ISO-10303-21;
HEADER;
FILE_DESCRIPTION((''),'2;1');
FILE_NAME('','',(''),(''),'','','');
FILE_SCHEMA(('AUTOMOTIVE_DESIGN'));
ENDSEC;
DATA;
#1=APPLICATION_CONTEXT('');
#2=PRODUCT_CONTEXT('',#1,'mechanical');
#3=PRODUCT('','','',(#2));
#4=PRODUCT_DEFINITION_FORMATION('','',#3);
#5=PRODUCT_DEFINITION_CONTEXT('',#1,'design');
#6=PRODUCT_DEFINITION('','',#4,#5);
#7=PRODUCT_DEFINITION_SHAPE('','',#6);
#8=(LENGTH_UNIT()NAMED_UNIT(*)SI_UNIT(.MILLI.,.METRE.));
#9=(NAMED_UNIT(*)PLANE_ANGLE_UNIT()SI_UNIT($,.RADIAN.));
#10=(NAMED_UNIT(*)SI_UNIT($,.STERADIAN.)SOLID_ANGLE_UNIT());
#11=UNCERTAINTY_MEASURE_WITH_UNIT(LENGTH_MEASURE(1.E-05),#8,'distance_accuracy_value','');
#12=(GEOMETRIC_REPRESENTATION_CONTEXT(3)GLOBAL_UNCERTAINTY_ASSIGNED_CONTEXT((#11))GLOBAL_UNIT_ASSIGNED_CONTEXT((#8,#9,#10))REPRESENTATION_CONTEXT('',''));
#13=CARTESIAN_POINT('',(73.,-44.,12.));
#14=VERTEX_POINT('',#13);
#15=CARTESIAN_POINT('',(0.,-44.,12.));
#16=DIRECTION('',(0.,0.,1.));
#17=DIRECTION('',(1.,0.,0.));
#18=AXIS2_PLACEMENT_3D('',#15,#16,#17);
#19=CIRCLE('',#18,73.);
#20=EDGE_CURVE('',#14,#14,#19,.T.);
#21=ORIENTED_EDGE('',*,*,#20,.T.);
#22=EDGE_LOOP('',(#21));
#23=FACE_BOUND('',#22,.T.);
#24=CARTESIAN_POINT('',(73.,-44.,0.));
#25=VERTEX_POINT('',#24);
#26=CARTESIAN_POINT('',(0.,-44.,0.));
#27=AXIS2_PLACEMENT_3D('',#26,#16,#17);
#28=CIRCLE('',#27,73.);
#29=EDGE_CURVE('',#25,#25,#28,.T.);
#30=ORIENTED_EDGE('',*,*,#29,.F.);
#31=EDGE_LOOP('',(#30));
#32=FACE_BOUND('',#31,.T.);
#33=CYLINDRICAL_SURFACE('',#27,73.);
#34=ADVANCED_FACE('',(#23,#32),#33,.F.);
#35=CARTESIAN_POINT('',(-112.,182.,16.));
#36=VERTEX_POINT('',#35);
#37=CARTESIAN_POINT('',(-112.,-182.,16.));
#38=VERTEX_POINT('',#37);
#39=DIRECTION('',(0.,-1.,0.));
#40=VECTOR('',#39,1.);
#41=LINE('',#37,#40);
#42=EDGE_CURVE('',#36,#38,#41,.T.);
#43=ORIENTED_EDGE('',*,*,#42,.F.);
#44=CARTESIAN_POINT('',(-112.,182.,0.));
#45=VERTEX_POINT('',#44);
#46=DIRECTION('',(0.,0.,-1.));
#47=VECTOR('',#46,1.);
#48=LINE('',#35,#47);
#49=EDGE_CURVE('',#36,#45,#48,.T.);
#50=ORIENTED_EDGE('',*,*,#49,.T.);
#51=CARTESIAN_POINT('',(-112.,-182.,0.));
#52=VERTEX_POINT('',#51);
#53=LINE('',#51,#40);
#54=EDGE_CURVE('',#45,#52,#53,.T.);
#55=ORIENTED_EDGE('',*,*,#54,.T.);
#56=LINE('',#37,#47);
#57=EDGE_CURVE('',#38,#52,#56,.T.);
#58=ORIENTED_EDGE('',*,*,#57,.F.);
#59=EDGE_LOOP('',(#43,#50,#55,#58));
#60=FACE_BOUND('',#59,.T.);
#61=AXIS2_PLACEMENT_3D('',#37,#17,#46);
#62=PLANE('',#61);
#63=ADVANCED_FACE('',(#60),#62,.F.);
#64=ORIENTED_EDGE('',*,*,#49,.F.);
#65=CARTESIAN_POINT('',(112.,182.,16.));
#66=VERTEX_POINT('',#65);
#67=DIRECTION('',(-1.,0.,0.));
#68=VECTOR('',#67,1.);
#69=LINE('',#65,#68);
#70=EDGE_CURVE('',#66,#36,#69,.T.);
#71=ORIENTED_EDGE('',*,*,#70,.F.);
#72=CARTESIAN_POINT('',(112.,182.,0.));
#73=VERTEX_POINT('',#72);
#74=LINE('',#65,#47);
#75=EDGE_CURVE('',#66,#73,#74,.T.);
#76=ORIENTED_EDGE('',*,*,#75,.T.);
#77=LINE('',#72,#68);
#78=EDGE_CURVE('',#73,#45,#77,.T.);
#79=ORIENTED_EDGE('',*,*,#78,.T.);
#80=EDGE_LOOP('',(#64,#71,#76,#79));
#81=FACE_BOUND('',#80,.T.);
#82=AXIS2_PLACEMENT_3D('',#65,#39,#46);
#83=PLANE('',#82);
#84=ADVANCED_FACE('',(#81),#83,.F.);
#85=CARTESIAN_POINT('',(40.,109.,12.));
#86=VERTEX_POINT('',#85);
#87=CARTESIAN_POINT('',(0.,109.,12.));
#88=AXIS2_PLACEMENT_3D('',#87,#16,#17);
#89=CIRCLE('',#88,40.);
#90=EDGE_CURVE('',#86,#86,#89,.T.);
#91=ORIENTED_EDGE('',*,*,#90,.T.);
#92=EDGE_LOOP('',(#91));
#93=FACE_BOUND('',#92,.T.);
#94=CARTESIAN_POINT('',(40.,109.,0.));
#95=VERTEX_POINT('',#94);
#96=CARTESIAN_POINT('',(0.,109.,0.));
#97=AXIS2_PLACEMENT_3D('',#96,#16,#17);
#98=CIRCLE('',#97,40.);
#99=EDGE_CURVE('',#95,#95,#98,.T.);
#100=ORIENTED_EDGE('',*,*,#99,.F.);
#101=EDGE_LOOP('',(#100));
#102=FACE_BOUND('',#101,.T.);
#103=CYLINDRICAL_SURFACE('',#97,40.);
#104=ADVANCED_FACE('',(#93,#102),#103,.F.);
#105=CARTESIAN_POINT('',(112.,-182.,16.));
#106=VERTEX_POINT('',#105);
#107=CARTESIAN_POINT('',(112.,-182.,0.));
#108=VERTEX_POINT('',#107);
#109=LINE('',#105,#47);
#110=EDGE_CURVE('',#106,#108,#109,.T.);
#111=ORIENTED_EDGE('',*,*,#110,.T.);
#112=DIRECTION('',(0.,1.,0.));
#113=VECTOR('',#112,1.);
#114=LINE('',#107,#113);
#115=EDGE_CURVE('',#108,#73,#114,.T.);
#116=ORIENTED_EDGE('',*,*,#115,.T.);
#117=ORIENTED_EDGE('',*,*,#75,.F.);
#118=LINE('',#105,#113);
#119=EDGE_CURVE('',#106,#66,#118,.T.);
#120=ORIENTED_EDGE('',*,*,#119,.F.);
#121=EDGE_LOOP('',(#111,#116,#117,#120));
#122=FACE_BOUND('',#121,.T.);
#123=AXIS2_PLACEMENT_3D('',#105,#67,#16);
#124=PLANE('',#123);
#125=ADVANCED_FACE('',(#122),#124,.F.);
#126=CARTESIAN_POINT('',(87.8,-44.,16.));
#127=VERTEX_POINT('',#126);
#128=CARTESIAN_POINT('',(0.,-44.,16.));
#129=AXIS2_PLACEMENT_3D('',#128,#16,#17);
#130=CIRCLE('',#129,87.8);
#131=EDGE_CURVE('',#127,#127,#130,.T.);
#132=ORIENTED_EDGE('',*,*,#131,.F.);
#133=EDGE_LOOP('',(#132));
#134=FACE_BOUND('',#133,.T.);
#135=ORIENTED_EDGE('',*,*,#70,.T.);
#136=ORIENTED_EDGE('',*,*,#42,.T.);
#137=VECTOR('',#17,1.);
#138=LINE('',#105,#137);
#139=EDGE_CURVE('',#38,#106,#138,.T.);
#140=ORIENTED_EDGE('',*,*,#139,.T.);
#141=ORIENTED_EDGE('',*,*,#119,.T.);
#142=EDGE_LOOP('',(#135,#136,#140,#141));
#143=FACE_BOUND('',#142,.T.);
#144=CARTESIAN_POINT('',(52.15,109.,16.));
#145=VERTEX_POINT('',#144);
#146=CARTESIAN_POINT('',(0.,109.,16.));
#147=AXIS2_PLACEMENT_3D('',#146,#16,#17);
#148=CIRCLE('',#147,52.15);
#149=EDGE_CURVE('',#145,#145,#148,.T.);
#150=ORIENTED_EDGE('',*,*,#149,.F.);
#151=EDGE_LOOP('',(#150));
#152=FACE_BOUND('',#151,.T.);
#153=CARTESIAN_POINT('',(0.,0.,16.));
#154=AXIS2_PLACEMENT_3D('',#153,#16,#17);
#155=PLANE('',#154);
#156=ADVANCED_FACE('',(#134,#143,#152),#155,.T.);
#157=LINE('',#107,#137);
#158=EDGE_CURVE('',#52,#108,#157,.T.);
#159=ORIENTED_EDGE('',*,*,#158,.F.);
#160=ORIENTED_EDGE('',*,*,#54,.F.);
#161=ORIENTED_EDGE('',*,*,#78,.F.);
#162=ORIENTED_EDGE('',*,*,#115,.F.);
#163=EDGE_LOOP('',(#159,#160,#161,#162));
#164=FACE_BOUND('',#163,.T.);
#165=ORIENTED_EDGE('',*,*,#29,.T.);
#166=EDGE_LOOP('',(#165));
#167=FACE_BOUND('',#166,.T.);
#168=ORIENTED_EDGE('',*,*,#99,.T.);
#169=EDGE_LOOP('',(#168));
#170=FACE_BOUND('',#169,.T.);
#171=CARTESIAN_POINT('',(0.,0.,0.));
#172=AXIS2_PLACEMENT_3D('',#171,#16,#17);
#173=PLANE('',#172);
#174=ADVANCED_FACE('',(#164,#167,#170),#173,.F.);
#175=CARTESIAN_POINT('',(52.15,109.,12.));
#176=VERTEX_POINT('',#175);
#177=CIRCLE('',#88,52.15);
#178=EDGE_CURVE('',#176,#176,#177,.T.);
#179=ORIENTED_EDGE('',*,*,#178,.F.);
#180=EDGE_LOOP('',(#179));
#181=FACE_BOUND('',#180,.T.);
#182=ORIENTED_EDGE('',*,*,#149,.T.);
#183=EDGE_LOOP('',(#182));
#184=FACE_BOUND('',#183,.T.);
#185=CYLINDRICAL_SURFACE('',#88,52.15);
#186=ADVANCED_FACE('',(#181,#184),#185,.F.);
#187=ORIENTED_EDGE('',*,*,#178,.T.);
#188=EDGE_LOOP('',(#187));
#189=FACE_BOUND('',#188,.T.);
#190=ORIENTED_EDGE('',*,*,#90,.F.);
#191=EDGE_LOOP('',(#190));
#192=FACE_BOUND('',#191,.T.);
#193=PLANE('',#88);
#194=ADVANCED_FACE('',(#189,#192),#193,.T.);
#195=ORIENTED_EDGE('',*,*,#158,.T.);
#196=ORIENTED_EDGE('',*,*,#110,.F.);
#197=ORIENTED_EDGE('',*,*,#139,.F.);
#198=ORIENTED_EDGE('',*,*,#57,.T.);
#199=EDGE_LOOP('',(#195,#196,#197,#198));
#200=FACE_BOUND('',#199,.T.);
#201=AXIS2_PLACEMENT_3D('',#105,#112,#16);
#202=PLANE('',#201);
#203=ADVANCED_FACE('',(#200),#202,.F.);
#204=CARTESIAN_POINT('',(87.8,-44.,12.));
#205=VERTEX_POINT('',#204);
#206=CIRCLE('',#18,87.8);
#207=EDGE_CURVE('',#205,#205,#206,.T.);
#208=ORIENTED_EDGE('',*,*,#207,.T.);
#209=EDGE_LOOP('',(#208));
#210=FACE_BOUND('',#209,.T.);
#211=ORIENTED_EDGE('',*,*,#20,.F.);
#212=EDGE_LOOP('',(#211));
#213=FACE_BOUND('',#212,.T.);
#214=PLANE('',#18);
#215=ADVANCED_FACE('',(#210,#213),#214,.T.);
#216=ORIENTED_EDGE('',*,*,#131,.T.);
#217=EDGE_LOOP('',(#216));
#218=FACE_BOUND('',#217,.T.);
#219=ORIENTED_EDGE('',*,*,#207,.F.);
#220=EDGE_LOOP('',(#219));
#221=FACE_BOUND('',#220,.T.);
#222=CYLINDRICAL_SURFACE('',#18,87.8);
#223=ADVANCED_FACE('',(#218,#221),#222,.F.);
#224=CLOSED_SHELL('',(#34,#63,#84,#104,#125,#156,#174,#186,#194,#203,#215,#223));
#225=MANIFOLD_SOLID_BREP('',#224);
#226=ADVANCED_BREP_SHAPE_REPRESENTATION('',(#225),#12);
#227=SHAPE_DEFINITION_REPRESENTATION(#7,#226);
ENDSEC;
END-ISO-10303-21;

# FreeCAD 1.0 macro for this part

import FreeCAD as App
import Part
import Sketcher
from FreeCAD import Vector
Q = App.Units.Quantity

doc = App.newDocument("Part")
body = doc.addObject("PartDesign::Body", "Body")

# Sketch on XY plane
sketch1 = body.newObject("Sketcher::SketchObject", "Sketch")
sketch1.AttachmentSupport = (doc.getObject("XY_Plane"), [""])
sketch1.MapMode = "FlatFace"
sketch1.addGeometry(Part.LineSegment(Vector(-112, 182, 0), Vector(-112, -182, 0)), False)
sketch1.addGeometry(Part.LineSegment(Vector(-112, -182, 0), Vector(112, -182, 0)), False)
sketch1.addGeometry(Part.LineSegment(Vector(112, -182, 0), Vector(112, 182, 0)), False)
sketch1.addGeometry(Part.LineSegment(Vector(112, 182, 0), Vector(-112, 182, 0)), False)
sketch1.addConstraint(Sketcher.Constraint("Coincident", 0, 2, 1, 1))
sketch1.addConstraint(Sketcher.Constraint("Coincident", 1, 2, 2, 1))
sketch1.addConstraint(Sketcher.Constraint("Coincident", 2, 2, 3, 1))
sketch1.addConstraint(Sketcher.Constraint("Coincident", 3, 2, 0, 1))
sketch1.addConstraint(Sketcher.Constraint("Vertical", 0))
sketch1.addConstraint(Sketcher.Constraint("Horizontal", 1))
sketch1.addConstraint(Sketcher.Constraint("Vertical", 2))
sketch1.addConstraint(Sketcher.Constraint("Horizontal", 3))
sketch1.addConstraint(Sketcher.Constraint("Symmetric", 0, 2, 2, 2, -1, 1))
sketch1.addConstraint(Sketcher.Constraint("DistanceX", 1, 1, 1, 2, Q("224 mm")))
sketch1.addConstraint(Sketcher.Constraint("DistanceY", 0, 2, 0, 1, Q("364 mm")))
pad1 = body.newObject("PartDesign::Pad", "Pad")
pad1.Profile = sketch1
pad1.Length = 16

# Sketch on XY plane
sketch2 = body.newObject("Sketcher::SketchObject", "Sketch001")
sketch2.AttachmentSupport = (doc.getObject("XY_Plane"), [""])
sketch2.MapMode = "FlatFace"
sketch2.AttachmentOffset = App.Placement(Vector(0, 0, 16), App.Rotation())
sketch2.addGeometry(Part.Circle(Vector(0, 109, 0), Vector(0, 0, 1), 52), False)
sketch2.addGeometry(Part.Circle(Vector(0, -44, 0), Vector(0, 0, 1), 88), False)
sketch2.addConstraint(Sketcher.Constraint("PointOnObject", 0, 3, -2))
sketch2.addConstraint(Sketcher.Constraint("PointOnObject", 1, 3, -2))
sketch2.addConstraint(Sketcher.Constraint("Diameter", 0, Q("104.3 mm")))
sketch2.addConstraint(Sketcher.Constraint("Diameter", 1, Q("175.6 mm")))
sketch2.addConstraint(Sketcher.Constraint("DistanceY", -1, 1, 0, 3, Q("109 mm")))
sketch2.addConstraint(Sketcher.Constraint("DistanceY", 1, 3, -1, 1, Q("44 mm")))
pocket1 = body.newObject("PartDesign::Pocket", "Pocket")
pocket1.Profile = sketch2
pocket1.Length = 4

# Sketch on XY plane
sketch3 = body.newObject("Sketcher::SketchObject", "Sketch002")
sketch3.AttachmentSupport = (doc.getObject("XY_Plane"), [""])
sketch3.MapMode = "FlatFace"
sketch3.AttachmentOffset = App.Placement(Vector(0, 0, 16), App.Rotation())
sketch3.addGeometry(Part.Circle(Vector(0, 109, 0), Vector(0, 0, 1), 40), False)
sketch3.addGeometry(Part.Circle(Vector(0, -44, 0), Vector(0, 0, 1), 73), False)
sketch3.addConstraint(Sketcher.Constraint("PointOnObject", 0, 3, -2))
sketch3.addConstraint(Sketcher.Constraint("PointOnObject", 1, 3, -2))
sketch3.addConstraint(Sketcher.Constraint("Diameter", 0, Q("80 mm")))
sketch3.addConstraint(Sketcher.Constraint("Diameter", 1, Q("146 mm")))
sketch3.addConstraint(Sketcher.Constraint("DistanceY", -1, 1, 0, 3, Q("109 mm")))
sketch3.addConstraint(Sketcher.Constraint("DistanceY", 1, 3, -1, 1, Q("44 mm")))
pocket2 = body.newObject("PartDesign::Pocket", "Pocket001")
pocket2.Profile = sketch3
pocket2.Type = "ThroughAll"

doc.recompute()
